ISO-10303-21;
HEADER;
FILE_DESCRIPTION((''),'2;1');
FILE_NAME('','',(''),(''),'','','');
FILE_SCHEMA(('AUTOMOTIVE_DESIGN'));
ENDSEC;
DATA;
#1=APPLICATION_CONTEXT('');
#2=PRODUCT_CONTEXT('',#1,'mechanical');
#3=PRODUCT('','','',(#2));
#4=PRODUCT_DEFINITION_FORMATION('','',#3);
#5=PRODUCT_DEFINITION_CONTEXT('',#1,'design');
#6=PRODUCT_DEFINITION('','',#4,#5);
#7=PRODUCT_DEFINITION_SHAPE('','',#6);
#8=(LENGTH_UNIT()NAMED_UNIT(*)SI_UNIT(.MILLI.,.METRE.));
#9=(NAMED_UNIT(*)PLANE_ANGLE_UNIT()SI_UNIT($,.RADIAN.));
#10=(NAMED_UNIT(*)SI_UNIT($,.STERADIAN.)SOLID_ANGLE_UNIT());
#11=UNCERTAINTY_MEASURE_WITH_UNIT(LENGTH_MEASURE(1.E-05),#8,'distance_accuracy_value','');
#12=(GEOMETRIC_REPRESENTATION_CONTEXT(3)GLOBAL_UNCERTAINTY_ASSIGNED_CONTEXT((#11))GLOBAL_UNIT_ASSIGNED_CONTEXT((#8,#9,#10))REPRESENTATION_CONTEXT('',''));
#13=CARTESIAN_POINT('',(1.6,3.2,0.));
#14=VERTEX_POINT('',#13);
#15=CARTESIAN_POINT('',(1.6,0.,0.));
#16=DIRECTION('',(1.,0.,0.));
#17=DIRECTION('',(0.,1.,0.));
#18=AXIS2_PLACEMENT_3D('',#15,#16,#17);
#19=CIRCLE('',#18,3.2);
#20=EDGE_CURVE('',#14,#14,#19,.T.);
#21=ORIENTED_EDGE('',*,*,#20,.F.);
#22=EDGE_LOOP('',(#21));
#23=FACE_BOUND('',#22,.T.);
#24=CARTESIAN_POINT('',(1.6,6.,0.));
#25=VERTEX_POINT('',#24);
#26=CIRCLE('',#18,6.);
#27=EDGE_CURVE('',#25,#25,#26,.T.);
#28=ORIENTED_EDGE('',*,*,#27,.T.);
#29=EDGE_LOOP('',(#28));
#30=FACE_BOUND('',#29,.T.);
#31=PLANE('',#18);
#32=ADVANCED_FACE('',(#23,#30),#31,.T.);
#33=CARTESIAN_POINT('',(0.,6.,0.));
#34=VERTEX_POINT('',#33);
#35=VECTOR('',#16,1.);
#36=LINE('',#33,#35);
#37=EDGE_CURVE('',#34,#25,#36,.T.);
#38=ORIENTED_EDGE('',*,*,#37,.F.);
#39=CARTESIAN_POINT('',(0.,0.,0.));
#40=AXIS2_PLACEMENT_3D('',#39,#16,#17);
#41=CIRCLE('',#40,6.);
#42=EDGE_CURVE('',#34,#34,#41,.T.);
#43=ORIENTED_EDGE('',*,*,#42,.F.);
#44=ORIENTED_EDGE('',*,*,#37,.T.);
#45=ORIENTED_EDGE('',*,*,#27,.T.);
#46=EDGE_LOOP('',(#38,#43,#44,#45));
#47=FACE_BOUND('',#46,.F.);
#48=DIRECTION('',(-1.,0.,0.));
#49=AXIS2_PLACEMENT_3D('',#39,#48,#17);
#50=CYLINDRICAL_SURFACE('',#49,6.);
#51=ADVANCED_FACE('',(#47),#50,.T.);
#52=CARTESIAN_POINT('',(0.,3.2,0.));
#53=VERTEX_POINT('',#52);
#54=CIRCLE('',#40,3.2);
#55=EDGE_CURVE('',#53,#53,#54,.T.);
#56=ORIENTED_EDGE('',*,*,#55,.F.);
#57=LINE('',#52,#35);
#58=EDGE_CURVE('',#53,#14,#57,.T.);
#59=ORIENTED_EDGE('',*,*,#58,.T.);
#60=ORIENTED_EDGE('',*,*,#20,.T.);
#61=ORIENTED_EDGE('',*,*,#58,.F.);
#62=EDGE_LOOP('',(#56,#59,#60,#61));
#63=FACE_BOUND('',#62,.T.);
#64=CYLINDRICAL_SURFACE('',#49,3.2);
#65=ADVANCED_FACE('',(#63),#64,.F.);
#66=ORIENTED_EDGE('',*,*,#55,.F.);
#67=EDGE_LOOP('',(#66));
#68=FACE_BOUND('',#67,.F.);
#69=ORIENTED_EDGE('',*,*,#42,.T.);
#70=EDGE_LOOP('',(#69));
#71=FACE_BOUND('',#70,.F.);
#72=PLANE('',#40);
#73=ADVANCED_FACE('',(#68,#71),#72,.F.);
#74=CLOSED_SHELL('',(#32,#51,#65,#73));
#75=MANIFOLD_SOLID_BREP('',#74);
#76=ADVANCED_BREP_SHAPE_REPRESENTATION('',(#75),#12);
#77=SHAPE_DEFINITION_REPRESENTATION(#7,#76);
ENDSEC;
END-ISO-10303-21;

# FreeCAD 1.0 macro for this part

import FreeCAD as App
import Part
import Sketcher

V = App.Vector
Q = App.Units.Quantity

doc = App.newDocument("Part")
body = doc.addObject("PartDesign::Body", "Body")

# Sketch on YZ plane
sketch1 = body.newObject("Sketcher::SketchObject", "Sketch")
sketch1.AttachmentSupport = (doc.getObject("YZ_Plane"), [""])
sketch1.MapMode = "FlatFace"
sketch1.addGeometry([
    Part.Circle(V(0, 0, 0), V(0, 0, 1), 6),
    Part.Circle(V(0, 0, 0), V(0, 0, 1), 3.2),
], False)
sketch1.addConstraint([
    Sketcher.Constraint("Coincident", 0, 3, -1, 1),
    Sketcher.Constraint("Coincident", 1, 3, -1, 1),
    Sketcher.Constraint("Diameter", 0, Q("12 mm")),
    Sketcher.Constraint("Diameter", 1, Q("6.4 mm")),
])
pad1 = body.newObject("PartDesign::Pad", "Pad")
pad1.Profile = sketch1
pad1.Length = 1.6

doc.recompute()
